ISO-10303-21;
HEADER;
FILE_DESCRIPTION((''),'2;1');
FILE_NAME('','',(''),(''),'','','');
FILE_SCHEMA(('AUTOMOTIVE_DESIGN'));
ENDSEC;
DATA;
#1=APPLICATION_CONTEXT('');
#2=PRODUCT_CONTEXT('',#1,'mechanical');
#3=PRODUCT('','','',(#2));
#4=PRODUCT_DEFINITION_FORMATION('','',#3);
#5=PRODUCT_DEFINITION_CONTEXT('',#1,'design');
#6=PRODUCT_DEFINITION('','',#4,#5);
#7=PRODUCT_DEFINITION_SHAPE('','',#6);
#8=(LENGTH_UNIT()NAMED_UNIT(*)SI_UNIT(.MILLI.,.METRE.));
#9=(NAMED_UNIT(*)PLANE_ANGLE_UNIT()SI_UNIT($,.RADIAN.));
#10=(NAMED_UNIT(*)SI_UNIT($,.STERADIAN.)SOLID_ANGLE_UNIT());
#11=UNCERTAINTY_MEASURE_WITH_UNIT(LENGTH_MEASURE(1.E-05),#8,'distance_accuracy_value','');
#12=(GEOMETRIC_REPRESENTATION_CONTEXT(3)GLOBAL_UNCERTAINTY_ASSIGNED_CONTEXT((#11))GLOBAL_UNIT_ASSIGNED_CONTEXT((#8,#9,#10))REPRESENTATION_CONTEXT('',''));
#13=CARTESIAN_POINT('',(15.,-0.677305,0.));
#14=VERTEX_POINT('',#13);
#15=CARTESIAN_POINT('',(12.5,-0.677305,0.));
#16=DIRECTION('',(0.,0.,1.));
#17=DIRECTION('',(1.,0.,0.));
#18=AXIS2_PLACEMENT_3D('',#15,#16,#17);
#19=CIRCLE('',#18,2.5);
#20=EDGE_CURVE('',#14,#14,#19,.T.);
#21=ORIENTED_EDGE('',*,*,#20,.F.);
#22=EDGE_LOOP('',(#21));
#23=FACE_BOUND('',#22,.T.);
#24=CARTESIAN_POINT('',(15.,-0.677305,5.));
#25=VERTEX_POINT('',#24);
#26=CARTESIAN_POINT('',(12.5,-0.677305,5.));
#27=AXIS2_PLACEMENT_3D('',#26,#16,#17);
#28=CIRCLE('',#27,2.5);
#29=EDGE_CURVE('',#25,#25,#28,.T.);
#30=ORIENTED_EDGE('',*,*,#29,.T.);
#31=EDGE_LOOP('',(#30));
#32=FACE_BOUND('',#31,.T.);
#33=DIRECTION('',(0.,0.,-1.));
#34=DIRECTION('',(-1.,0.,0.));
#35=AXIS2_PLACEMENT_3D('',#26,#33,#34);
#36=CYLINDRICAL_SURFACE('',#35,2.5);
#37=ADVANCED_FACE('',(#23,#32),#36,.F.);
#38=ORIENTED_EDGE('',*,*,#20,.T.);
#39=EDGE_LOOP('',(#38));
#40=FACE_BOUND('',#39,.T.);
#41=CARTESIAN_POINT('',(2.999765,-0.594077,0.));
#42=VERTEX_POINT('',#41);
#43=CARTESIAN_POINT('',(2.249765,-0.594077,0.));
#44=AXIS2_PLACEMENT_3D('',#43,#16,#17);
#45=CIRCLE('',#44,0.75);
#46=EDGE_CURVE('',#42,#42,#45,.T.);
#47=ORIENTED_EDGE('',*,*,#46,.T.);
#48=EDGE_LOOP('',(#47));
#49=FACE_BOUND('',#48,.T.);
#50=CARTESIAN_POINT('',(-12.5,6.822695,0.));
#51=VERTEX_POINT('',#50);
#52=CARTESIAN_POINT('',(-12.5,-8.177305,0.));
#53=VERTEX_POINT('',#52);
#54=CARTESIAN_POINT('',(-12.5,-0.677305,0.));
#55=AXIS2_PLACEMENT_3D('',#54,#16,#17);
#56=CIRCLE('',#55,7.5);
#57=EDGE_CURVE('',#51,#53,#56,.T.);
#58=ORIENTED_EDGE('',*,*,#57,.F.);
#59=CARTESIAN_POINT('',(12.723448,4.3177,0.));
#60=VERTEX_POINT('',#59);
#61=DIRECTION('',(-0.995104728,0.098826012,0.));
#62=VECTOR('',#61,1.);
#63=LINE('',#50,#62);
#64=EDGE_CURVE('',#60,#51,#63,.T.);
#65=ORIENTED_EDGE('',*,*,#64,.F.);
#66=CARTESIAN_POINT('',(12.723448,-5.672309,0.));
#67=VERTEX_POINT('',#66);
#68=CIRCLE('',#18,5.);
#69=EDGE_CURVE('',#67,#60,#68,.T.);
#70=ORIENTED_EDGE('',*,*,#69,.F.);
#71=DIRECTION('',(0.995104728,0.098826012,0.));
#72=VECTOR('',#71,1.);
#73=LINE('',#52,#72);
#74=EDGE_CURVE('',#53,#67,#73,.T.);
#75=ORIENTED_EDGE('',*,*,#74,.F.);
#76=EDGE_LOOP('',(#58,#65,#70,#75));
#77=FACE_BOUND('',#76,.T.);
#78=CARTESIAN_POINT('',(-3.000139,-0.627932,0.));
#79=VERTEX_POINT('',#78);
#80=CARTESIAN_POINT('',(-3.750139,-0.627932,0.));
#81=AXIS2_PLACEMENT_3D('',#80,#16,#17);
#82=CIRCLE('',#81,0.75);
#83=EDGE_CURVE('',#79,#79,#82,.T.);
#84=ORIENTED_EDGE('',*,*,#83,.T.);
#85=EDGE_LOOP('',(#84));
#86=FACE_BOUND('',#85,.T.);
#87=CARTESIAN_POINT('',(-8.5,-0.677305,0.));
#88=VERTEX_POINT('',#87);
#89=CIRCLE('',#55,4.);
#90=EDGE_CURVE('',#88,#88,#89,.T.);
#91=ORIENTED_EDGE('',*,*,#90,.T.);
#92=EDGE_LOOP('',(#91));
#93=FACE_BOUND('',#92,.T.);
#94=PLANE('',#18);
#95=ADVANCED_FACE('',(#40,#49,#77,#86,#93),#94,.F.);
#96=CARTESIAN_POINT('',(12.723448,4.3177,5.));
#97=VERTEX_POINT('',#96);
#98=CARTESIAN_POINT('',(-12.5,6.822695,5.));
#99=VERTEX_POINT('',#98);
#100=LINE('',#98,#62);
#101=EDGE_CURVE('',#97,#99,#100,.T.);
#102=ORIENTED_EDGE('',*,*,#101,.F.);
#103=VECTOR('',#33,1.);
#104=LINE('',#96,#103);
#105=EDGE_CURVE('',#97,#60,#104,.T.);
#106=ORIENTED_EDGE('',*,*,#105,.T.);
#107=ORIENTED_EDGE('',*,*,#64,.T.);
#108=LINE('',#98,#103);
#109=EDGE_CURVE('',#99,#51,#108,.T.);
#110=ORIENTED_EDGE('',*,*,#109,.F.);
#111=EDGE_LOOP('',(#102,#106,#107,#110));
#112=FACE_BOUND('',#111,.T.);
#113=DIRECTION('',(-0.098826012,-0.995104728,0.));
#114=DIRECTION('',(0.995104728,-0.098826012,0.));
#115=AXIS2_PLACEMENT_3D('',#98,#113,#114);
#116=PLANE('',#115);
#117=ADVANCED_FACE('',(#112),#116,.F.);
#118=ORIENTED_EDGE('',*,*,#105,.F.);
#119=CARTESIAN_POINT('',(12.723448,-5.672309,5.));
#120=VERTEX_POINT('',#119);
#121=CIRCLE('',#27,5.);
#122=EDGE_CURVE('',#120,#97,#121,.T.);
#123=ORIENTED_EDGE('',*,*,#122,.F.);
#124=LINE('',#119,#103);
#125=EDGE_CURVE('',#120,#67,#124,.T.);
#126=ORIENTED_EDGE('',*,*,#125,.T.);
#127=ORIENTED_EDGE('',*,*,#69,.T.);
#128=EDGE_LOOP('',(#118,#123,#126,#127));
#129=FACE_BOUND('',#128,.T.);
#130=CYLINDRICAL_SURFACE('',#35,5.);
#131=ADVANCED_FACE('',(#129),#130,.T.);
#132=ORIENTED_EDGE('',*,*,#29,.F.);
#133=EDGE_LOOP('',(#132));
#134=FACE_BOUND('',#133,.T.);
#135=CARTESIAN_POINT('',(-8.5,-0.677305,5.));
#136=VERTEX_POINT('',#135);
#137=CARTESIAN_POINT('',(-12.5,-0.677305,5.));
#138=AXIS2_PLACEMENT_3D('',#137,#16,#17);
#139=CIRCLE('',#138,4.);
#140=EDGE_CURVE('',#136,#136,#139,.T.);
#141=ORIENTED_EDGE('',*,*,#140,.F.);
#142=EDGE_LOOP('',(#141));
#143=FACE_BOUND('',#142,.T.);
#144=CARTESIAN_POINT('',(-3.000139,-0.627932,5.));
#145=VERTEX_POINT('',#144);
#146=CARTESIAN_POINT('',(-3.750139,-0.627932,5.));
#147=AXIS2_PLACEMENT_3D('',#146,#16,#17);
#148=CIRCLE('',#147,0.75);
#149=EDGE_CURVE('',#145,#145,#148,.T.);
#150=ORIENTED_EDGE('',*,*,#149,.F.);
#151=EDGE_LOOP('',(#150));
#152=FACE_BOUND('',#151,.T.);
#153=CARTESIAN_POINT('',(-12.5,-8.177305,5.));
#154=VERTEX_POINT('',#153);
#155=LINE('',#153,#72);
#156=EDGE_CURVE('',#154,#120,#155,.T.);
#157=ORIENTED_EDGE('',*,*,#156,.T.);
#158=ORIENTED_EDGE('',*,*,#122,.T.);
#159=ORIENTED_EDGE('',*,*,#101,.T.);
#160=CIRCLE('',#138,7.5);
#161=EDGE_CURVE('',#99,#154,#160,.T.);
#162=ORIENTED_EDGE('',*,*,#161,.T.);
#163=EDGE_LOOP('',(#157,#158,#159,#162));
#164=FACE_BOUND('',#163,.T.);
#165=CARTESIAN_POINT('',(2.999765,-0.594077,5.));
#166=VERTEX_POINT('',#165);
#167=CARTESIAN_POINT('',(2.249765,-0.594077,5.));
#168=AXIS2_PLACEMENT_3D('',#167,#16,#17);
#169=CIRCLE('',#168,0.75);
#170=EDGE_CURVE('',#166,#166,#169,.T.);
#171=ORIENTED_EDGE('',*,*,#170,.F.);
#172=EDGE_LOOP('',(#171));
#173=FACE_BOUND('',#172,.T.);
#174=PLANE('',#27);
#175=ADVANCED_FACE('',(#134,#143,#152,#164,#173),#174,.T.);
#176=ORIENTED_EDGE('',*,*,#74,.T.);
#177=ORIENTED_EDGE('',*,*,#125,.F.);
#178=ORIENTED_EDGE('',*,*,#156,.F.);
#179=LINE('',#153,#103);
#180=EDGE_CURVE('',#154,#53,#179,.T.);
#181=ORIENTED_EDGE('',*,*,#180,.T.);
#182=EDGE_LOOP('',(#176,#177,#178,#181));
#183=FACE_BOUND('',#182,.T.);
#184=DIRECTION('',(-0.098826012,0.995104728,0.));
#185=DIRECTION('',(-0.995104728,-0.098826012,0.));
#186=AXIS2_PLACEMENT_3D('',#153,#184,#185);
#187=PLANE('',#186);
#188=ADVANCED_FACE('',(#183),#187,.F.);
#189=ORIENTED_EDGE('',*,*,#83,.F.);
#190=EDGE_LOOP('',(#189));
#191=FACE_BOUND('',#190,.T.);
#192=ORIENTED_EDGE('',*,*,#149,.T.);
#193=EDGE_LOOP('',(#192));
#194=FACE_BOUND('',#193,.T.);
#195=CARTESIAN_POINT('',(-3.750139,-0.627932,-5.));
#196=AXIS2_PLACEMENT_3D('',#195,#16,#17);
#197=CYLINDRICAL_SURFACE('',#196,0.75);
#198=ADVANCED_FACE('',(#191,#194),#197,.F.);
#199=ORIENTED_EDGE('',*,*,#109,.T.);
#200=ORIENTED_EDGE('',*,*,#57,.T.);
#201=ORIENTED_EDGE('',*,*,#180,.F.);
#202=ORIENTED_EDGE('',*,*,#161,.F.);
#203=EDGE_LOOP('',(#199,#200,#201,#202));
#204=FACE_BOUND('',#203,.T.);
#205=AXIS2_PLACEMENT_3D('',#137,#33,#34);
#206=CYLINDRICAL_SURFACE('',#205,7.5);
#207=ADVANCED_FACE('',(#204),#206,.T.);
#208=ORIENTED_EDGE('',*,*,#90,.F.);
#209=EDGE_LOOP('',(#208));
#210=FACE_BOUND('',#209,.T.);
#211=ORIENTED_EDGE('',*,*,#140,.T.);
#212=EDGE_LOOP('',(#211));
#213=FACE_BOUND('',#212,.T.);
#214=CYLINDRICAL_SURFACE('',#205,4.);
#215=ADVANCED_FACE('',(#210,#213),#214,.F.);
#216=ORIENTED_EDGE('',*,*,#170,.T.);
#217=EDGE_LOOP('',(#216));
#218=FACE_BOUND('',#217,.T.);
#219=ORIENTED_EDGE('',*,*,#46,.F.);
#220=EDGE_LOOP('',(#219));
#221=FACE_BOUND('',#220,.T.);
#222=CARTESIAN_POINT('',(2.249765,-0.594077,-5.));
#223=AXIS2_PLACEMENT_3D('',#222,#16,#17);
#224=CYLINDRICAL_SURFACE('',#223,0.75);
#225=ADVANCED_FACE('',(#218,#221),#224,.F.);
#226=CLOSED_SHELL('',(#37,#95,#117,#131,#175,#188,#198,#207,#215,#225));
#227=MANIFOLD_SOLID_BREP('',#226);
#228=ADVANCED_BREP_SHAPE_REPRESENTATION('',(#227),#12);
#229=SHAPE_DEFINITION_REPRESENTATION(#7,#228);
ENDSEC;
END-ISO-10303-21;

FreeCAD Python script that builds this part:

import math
import FreeCAD as App
import Part
import Sketcher

V = App.Vector

doc = App.newDocument("Part")
body = doc.addObject("PartDesign::Body", "Body")

sketch1 = body.newObject("Sketcher::SketchObject", "Sketch")
sketch1.AttachmentSupport = (doc.getObject("XY_Plane"), [""])
sketch1.MapMode = "FlatFace"
sketch1.addGeometry([
    Part.LineSegment(V(12.723448, 4.3177, 0), V(-12.5, 6.822695, 0)),
    Part.ArcOfCircle(Part.Circle(V(-12.5, -0.677305, 0), V(0, 0, 1), 7.5), math.radians(90), math.radians(270)),
    Part.LineSegment(V(-12.5, -8.177305, 0), V(12.723448, -5.672309, 0)),
    Part.ArcOfCircle(Part.Circle(V(12.5, -0.677305, 0), V(0, 0, 1), 5), math.radians(-87.438623), math.radians(87.438623)),
    Part.Circle(V(12.5, -0.677305, 0), V(0, 0, 1), 2.5),
    Part.Circle(V(-12.5, -0.677305, 0), V(0, 0, 1), 4),
], False)
sketch1.addConstraint([
    Sketcher.Constraint("Coincident", 0, 2, 1, 1),
    Sketcher.Constraint("Coincident", 1, 2, 2, 1),
    Sketcher.Constraint("Coincident", 2, 2, 3, 1),
    Sketcher.Constraint("Coincident", 3, 2, 0, 1),
    Sketcher.Constraint("Coincident", 4, 3, 3, 3),
    Sketcher.Constraint("Coincident", 5, 3, 1, 3),
    Sketcher.Constraint("Symmetric", 1, 3, 3, 3, -2),
    Sketcher.Constraint("Vertical", 5, 3, 0, 2),
    Sketcher.Constraint("Vertical", 0, 2, 1, 2),
    Sketcher.Constraint("Vertical", 2, 2, 3, 2),
    Sketcher.Constraint("Diameter", 4, 5.0),
    Sketcher.Constraint("Diameter", 5, 8.0),
    Sketcher.Constraint("Radius", 3, 5.0),
    Sketcher.Constraint("Radius", 1, 7.5),
    Sketcher.Constraint("DistanceX", 1, 3, 3, 3, 25.0),
    Sketcher.Constraint("DistanceY", -1, 1, 3, 2, 4.3177),
    Sketcher.Constraint("Distance", 0, 25.347531),
])
pad1 = body.newObject("PartDesign::Pad", "Pad")
pad1.Profile = sketch1
pad1.Length = 5

sketch2 = body.newObject("Sketcher::SketchObject", "Sketch001")
sketch2.AttachmentSupport = (doc.getObject("XY_Plane"), [""])
sketch2.MapMode = "FlatFace"
sketch2.AttachmentOffset = App.Placement(V(0, 0, 5), App.Rotation())
sketch2.addGeometry([
    Part.Circle(V(-3.750139, -0.627932, 0), V(0, 0, 1), 0.75),
    Part.Circle(V(2.249765, -0.594077, 0), V(0, 0, 1), 0.75),
], False)
sketch2.addConstraint([
    Sketcher.Constraint("Equal", 0, 1),
    Sketcher.Constraint("Diameter", 0, 1.5),
    Sketcher.Constraint("DistanceX", 0, 3, -1, 1, 3.750139),
    Sketcher.Constraint("DistanceY", 0, 3, -1, 1, 0.627932),
    Sketcher.Constraint("DistanceX", -1, 1, 1, 3, 2.249765),
    Sketcher.Constraint("DistanceY", 1, 3, -1, 1, 0.594077),
])
pocket1 = body.newObject("PartDesign::Pocket", "Pocket")
pocket1.Profile = sketch2
pocket1.Length = 10

doc.recompute()
